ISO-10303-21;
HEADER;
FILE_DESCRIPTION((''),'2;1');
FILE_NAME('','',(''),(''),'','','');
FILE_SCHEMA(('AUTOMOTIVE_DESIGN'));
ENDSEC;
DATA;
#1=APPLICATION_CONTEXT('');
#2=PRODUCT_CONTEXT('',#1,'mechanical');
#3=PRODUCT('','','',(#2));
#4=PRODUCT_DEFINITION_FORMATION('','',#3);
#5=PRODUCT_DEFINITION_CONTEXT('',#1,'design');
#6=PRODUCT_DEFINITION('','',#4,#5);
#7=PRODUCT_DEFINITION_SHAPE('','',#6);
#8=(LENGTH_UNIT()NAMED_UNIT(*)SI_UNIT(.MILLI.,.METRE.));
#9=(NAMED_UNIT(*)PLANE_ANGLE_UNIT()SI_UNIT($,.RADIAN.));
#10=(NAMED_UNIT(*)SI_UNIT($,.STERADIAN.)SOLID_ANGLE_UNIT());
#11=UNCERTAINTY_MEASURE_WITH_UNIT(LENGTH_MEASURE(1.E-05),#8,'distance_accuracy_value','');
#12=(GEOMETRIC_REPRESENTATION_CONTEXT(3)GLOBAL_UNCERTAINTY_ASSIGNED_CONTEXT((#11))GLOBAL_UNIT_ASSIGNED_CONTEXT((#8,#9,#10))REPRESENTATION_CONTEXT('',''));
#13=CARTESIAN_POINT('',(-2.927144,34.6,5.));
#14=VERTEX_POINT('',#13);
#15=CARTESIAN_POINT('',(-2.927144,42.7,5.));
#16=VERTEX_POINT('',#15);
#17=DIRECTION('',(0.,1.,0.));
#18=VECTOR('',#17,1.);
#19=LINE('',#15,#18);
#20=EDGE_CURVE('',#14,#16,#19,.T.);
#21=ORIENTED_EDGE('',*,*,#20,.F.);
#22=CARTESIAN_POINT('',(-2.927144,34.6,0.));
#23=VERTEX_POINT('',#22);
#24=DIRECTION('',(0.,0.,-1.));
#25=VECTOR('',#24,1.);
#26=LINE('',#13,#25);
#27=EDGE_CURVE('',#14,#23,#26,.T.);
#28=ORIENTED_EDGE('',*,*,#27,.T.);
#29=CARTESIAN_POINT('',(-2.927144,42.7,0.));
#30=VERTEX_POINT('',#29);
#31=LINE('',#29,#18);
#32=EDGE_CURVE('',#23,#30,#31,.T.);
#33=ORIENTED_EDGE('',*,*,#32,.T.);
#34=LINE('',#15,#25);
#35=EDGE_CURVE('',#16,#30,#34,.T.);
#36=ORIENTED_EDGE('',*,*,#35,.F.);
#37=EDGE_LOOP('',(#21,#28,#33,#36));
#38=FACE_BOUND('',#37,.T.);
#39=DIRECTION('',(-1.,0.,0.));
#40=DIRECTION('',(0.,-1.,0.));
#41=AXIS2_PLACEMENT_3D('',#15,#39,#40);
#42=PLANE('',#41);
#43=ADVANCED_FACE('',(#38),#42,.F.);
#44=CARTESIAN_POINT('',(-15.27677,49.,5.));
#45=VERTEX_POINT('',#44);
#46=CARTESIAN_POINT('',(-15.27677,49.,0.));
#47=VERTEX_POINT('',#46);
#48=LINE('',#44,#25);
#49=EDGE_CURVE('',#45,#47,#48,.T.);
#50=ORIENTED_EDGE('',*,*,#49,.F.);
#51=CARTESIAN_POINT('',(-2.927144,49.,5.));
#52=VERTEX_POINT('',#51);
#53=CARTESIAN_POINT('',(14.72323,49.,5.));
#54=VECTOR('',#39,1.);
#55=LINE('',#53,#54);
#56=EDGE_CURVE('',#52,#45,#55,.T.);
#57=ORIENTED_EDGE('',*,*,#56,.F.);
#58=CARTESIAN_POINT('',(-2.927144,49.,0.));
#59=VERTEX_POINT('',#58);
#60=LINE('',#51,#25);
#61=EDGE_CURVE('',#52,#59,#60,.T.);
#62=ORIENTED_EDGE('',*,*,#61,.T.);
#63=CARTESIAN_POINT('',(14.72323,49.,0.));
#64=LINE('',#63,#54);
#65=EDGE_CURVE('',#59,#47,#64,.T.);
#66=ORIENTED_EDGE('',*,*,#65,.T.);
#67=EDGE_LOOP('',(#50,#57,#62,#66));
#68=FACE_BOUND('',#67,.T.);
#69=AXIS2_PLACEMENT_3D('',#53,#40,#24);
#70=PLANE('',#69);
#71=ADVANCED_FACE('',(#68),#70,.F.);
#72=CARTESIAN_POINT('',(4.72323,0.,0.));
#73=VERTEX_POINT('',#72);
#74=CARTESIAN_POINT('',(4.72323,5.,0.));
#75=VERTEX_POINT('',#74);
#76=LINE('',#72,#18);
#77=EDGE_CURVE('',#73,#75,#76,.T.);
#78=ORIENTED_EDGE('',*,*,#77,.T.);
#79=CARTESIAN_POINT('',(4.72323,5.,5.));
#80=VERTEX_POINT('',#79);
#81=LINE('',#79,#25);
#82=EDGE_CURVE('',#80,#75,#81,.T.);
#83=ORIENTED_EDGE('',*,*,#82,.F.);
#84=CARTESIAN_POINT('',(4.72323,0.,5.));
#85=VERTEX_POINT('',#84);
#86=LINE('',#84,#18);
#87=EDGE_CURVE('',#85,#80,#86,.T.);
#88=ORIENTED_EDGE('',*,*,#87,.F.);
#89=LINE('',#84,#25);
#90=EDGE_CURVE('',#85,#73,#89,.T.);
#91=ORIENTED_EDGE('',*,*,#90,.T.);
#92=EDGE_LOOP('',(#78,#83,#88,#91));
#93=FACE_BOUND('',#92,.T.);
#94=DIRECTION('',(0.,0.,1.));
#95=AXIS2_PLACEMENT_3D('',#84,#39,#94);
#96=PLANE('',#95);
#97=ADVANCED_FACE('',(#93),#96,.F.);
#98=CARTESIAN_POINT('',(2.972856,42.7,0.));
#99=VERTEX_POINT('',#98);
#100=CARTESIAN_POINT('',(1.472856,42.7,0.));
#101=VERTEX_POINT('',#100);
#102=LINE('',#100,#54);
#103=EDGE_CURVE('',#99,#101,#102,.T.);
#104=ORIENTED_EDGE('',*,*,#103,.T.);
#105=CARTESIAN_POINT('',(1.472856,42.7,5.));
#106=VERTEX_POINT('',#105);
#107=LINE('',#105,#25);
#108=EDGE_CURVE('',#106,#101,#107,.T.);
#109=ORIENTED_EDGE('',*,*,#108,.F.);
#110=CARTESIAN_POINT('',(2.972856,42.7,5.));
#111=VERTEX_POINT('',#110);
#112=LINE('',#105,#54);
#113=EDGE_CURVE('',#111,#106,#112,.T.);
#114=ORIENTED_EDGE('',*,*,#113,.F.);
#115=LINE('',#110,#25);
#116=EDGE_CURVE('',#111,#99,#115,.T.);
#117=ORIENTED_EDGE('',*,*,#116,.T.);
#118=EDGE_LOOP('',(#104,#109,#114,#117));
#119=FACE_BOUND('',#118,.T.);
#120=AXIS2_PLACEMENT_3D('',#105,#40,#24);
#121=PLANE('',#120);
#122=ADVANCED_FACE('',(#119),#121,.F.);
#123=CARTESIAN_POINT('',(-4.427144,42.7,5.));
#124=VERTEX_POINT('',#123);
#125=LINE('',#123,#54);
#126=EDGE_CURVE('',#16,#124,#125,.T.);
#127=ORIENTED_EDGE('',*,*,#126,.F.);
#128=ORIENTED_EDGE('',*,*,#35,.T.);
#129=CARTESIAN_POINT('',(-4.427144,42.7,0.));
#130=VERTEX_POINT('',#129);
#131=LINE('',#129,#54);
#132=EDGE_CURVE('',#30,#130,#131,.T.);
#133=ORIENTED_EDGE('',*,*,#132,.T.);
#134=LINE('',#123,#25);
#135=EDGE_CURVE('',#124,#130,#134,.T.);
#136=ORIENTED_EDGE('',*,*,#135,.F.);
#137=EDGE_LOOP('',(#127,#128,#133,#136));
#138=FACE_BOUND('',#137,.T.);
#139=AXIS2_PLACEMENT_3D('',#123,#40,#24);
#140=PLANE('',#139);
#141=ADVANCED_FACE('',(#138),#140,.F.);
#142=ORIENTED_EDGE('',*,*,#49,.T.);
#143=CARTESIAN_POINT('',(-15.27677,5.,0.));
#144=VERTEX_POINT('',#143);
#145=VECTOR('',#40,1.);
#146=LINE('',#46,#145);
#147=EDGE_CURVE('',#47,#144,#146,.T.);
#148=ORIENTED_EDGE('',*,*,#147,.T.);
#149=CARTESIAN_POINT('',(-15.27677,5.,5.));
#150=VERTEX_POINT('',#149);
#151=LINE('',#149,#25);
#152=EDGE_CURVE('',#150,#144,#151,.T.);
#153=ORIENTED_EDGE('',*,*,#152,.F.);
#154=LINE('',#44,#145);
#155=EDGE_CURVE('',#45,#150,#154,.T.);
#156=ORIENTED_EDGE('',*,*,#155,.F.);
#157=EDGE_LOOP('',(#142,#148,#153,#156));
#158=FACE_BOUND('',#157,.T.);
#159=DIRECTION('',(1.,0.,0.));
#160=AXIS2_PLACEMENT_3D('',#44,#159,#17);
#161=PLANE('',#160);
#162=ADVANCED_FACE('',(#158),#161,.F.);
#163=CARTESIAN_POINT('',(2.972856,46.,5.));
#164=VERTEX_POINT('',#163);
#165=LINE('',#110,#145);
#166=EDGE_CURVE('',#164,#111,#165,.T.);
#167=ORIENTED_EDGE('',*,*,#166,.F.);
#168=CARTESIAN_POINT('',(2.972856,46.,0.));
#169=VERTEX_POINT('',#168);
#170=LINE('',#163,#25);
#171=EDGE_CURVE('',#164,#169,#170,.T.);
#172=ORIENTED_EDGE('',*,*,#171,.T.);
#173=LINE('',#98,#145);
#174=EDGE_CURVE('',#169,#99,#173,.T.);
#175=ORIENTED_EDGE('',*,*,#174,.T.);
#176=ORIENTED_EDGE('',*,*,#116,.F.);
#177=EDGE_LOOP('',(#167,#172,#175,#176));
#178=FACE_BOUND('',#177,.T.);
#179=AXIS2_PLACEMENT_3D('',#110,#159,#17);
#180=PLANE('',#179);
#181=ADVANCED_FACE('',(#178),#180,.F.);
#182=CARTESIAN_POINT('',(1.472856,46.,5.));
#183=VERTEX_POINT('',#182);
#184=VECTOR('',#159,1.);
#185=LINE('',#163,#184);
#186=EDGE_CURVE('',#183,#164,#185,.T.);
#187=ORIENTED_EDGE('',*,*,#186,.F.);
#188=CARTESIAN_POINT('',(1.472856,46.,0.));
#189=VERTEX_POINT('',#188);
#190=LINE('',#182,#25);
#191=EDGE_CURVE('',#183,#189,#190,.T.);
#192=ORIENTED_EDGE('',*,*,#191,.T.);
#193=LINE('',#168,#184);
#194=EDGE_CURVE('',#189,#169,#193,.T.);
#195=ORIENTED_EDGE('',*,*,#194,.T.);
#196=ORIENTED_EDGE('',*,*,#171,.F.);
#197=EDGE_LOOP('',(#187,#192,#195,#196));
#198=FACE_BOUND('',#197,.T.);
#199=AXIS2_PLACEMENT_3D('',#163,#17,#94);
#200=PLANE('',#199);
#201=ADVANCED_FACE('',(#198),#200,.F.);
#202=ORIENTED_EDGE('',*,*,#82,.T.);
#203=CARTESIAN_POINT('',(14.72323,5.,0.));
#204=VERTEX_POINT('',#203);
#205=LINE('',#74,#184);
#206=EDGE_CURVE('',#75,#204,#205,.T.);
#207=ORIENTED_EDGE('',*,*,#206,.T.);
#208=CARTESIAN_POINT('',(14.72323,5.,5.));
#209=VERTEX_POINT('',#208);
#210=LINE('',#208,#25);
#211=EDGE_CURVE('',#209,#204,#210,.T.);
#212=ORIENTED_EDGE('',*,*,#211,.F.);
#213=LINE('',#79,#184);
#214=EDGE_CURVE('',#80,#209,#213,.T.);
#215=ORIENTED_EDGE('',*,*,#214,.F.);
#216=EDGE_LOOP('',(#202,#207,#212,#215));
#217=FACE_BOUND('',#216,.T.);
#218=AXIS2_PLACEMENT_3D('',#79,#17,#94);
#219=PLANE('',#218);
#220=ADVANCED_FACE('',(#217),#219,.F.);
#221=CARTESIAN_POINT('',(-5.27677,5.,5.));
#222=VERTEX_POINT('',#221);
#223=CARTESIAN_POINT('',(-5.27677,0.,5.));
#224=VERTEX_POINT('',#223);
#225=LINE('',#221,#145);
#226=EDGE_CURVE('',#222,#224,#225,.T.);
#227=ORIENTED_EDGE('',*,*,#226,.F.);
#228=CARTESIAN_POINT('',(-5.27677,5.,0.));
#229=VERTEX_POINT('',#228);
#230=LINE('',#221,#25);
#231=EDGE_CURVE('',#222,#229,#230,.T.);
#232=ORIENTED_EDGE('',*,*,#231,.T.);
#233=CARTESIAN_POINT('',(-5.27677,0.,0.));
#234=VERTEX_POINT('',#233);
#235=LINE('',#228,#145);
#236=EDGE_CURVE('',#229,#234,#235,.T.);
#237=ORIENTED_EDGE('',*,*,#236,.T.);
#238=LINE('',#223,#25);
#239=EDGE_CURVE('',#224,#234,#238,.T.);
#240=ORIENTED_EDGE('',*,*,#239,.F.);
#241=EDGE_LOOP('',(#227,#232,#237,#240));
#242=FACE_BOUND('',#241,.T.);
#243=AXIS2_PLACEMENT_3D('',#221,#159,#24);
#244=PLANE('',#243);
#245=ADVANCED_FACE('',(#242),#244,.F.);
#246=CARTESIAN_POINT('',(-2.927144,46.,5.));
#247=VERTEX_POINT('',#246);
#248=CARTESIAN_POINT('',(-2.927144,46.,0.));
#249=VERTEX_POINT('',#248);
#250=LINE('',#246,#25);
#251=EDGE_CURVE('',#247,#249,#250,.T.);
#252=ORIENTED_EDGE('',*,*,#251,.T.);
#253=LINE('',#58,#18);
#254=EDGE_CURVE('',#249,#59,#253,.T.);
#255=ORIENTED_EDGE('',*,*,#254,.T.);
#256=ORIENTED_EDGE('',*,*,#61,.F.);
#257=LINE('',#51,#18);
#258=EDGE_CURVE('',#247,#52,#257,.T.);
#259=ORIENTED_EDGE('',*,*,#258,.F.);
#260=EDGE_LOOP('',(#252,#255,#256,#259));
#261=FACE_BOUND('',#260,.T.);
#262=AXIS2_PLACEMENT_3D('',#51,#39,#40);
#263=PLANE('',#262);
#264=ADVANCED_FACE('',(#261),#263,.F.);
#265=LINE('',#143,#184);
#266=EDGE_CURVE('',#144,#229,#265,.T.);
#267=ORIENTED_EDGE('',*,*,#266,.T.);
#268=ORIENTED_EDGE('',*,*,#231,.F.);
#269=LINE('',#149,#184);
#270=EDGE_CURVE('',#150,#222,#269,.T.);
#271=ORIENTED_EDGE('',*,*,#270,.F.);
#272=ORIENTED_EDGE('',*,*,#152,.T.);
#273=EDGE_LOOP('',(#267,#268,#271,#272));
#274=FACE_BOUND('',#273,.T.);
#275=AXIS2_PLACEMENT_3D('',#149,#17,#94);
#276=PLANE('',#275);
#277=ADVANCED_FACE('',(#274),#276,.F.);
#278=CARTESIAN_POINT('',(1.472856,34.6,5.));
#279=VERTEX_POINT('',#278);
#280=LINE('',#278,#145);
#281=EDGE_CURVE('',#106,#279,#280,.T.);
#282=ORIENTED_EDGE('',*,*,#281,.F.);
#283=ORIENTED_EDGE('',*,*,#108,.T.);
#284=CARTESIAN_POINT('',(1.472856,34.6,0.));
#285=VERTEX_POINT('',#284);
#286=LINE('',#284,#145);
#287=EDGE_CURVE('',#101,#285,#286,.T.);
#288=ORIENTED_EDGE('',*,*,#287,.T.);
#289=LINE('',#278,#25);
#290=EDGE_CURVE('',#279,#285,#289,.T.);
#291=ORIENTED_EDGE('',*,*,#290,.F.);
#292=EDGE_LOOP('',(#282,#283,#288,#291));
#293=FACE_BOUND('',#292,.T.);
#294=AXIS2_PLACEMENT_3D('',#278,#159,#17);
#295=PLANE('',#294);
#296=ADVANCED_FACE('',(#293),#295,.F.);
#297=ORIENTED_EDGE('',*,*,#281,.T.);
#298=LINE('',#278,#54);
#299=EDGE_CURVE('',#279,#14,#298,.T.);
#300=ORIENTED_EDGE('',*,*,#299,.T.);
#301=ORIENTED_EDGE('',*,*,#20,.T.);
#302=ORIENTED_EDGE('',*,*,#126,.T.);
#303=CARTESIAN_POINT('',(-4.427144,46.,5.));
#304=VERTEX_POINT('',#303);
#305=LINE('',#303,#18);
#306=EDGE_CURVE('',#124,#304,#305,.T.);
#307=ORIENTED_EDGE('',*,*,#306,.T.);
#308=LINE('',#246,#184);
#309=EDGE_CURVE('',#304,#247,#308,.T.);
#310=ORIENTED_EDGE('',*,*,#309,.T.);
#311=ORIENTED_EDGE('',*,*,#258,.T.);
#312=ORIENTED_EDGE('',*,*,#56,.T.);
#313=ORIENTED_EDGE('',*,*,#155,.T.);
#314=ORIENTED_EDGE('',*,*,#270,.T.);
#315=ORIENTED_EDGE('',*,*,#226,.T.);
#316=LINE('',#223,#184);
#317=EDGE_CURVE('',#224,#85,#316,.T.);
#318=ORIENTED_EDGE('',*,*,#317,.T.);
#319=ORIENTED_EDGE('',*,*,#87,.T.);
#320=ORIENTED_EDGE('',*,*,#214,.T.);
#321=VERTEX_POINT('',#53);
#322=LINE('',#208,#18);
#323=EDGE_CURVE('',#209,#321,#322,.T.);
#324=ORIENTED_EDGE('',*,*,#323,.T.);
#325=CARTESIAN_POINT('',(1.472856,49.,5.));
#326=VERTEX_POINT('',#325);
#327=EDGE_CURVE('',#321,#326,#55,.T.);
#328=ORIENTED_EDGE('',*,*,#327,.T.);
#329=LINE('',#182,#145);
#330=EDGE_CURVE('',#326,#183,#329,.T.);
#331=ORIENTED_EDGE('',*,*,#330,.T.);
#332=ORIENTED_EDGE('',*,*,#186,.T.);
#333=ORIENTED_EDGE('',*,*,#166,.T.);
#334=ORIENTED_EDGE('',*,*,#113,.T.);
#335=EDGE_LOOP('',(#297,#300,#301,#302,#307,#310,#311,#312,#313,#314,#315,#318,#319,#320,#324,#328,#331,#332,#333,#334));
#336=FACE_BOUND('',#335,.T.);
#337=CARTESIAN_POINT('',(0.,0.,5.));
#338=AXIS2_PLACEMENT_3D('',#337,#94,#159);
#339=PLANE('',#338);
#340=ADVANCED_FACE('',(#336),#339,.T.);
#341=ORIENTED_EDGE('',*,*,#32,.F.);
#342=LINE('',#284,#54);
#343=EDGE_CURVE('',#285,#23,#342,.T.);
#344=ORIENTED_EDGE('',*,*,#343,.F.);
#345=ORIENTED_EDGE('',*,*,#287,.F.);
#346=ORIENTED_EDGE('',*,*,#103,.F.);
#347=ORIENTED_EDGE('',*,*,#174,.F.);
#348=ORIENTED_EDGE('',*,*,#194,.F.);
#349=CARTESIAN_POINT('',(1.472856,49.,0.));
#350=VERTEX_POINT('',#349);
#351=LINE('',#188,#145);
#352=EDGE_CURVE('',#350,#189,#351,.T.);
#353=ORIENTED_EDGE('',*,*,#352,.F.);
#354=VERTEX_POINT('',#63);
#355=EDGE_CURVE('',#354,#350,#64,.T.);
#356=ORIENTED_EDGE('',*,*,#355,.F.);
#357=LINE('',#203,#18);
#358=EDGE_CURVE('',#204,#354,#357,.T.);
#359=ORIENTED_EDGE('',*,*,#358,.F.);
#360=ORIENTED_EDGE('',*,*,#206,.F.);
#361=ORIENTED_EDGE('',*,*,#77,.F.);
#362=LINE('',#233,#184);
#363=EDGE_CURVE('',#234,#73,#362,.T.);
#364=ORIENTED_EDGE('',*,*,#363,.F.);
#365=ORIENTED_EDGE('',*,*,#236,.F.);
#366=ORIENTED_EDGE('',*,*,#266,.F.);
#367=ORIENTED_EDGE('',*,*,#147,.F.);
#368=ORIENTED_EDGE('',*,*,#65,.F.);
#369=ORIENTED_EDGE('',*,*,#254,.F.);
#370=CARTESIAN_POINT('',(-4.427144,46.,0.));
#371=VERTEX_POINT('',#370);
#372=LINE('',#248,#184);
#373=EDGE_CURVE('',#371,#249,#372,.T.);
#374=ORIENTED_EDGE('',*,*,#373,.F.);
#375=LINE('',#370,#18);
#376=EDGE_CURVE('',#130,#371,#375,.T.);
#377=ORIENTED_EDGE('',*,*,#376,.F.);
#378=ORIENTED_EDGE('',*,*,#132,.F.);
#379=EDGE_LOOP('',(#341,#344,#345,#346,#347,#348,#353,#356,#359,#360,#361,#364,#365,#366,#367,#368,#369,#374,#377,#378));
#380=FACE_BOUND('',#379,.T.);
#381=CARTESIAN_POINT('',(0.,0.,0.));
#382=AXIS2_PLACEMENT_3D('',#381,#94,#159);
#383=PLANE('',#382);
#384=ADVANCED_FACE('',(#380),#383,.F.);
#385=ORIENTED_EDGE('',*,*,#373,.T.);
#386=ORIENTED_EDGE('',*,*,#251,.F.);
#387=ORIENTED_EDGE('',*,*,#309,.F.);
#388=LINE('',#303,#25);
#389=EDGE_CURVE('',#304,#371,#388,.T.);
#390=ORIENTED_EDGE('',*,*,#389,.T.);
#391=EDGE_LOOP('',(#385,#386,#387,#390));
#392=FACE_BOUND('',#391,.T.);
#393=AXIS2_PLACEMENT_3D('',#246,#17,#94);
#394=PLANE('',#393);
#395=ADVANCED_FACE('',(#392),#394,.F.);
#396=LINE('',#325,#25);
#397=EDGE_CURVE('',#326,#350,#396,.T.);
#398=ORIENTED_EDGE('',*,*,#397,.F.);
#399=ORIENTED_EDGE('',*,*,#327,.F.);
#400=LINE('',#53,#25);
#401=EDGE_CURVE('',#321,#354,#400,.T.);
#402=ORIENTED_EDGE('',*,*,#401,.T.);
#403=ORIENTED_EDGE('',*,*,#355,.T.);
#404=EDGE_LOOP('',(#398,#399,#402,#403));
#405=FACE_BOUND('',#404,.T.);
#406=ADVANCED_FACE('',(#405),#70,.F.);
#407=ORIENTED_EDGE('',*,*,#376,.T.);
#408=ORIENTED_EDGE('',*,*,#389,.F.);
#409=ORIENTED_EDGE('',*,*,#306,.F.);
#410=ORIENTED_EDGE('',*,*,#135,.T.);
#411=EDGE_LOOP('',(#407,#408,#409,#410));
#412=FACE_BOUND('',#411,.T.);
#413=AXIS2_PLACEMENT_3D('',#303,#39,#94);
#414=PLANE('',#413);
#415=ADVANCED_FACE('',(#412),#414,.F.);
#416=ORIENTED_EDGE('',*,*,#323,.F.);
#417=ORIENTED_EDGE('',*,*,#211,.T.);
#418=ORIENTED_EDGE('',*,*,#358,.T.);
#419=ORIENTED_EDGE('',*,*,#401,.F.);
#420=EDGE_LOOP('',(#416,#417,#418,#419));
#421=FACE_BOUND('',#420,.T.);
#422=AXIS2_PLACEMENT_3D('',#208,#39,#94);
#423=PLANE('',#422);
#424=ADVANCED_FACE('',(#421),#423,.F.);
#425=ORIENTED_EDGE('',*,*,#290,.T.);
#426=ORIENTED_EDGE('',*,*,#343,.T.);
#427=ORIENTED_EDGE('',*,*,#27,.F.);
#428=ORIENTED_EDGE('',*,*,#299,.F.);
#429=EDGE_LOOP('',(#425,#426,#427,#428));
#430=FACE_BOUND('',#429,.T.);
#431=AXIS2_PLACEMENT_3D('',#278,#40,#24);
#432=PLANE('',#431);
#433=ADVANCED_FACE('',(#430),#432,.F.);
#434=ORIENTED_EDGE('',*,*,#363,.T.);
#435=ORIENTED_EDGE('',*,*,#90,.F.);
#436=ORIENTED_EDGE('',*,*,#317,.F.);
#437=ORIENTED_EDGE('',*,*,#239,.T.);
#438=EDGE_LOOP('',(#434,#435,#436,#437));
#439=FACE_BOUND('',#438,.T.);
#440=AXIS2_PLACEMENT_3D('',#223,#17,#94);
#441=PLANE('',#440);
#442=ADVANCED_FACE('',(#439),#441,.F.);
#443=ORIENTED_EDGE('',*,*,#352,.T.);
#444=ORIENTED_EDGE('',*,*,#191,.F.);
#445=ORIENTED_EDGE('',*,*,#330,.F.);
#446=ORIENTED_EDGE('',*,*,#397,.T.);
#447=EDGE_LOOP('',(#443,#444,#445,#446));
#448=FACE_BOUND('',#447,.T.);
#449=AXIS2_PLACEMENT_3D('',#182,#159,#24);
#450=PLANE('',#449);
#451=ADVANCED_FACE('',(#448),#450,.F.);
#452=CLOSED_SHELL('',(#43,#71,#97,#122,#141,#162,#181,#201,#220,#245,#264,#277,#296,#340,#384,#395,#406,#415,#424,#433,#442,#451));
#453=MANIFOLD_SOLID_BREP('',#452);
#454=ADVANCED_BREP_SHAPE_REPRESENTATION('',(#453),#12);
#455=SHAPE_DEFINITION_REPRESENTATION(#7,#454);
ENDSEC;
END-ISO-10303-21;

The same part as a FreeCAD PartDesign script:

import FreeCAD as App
import Part
import Sketcher
Q = App.Units.Quantity


def add_polygon(sketch, points):
    """Adds a closed chain of lines whose ends are joined by coincident constraints."""
    first, n = sketch.GeometryCount, len(points)
    for a, b in zip(points, points[1:] + points[:1]):
        sketch.addGeometry(Part.LineSegment(App.Vector(*a, 0), App.Vector(*b, 0)), False)
    for i in range(n):
        sketch.addConstraint(Sketcher.Constraint("Coincident", first + i, 2, first + (i + 1) % n, 1))

doc = App.newDocument("Part")
params = doc.addObject("Spreadsheet::Sheet", "Params")
for row, (alias, value) in enumerate([
    ("sketch1_width", "10 mm"),
    ("sketch1_height", "5 mm"),
    ("sketch1_height2", "44 mm"),
    ("pad1_length", "5 mm"),
    ("sketch2_height", "3 mm"),
    ("sketch2_width", "4.4 mm"),
    ("sketch2_width2", "1.5 mm"),
    ("sketch2_height2", "8.1 mm"),
    ("sketch2_height3", "3.3 mm"),
    ("pocket1_length", "5 mm"),
], start=1):
    params.set(f"A{row}", alias)
    params.set(f"B{row}", "=" + value)
    params.setAlias(f"B{row}", alias)

body = doc.addObject("PartDesign::Body", "Body")

# Sketch on XY plane
sketch1 = body.newObject("Sketcher::SketchObject", "Sketch")
sketch1.AttachmentSupport = (doc.getObject("XY_Plane"), [""])
sketch1.MapMode = "FlatFace"
add_polygon(sketch1, [(-5.27677, 0), (4.72323, 0), (4.72323, 5), (14.72323, 5), (14.72323, 49), (-15.27677, 49), (-15.27677, 5), (-5.27677, 5)])  # lines 0-7
sketch1.addConstraint(Sketcher.Constraint("Horizontal", 0))
sketch1.addConstraint(Sketcher.Constraint("Vertical", 1))
sketch1.addConstraint(Sketcher.Constraint("Horizontal", 2))
sketch1.addConstraint(Sketcher.Constraint("Vertical", 3))
sketch1.addConstraint(Sketcher.Constraint("Horizontal", 4))
sketch1.addConstraint(Sketcher.Constraint("Vertical", 5))
sketch1.addConstraint(Sketcher.Constraint("Horizontal", 6))
sketch1.addConstraint(Sketcher.Constraint("Vertical", 7))
sketch1.addConstraint(Sketcher.Constraint("PointOnObject", 0, 2, -1))
sketch1.addConstraint(Sketcher.Constraint("Horizontal", 2, 2, 5, 2))
sketch1.addConstraint(Sketcher.Constraint("Equal", 0, 2))
sketch1.addConstraint(Sketcher.Constraint("Equal", 2, 6))
sketch1.addConstraint(Sketcher.Constraint("DistanceX", 0, 1, 0, 2, Q("10 mm")))
sketch1.addConstraint(Sketcher.Constraint("DistanceY", 1, 1, 1, 2, Q("5 mm")))
sketch1.addConstraint(Sketcher.Constraint("DistanceY", 3, 1, 3, 2, Q("44 mm")))
sketch1.addConstraint(Sketcher.Constraint("DistanceX", -1, 1, 0, 2, Q("4.72323 mm")))
sketch1.setExpression("Constraints[20]", "Params.sketch1_width")
sketch1.setExpression("Constraints[21]", "Params.sketch1_height")
sketch1.setExpression("Constraints[22]", "Params.sketch1_height2")
pad1 = body.newObject("PartDesign::Pad", "Pad")
pad1.Profile = sketch1
pad1.setExpression("Length", "Params.pad1_length")

# Sketch on XY plane
sketch2 = body.newObject("Sketcher::SketchObject", "Sketch001")
sketch2.AttachmentSupport = (doc.getObject("XY_Plane"), [""])
sketch2.MapMode = "FlatFace"
add_polygon(sketch2, [(1.472856, 34.6), (-2.927144, 34.6), (-2.927144, 42.7), (-4.427144, 42.7), (-4.427144, 46), (-2.927144, 46), (-2.927144, 49), (1.472856, 49), (1.472856, 46), (2.972856, 46), (2.972856, 42.7), (1.472856, 42.7)])  # lines 0-11
sketch2.addConstraint(Sketcher.Constraint("Horizontal", 0))
sketch2.addConstraint(Sketcher.Constraint("Vertical", 1))
sketch2.addConstraint(Sketcher.Constraint("Horizontal", 2))
sketch2.addConstraint(Sketcher.Constraint("Vertical", 3))
sketch2.addConstraint(Sketcher.Constraint("Horizontal", 4))
sketch2.addConstraint(Sketcher.Constraint("Vertical", 5))
sketch2.addConstraint(Sketcher.Constraint("Horizontal", 6))
sketch2.addConstraint(Sketcher.Constraint("Vertical", 7))
sketch2.addConstraint(Sketcher.Constraint("Horizontal", 8))
sketch2.addConstraint(Sketcher.Constraint("Vertical", 9))
sketch2.addConstraint(Sketcher.Constraint("Horizontal", 10))
sketch2.addConstraint(Sketcher.Constraint("Vertical", 11))
sketch2.addConstraint(Sketcher.Constraint("Horizontal", 4, 2, 7, 2))
sketch2.addConstraint(Sketcher.Constraint("Horizontal", 2, 2, 9, 2))
sketch2.addConstraint(Sketcher.Constraint("Vertical", 1, 2, 4, 2))
sketch2.addConstraint(Sketcher.Constraint("Vertical", 7, 2, 10, 2))
sketch2.addConstraint(Sketcher.Constraint("Equal", 4, 8))
sketch2.addConstraint(Sketcher.Constraint("DistanceY", 5, 1, 5, 2, Q("3 mm")))
sketch2.addConstraint(Sketcher.Constraint("DistanceX", 0, 2, 0, 1, Q("4.4 mm")))
sketch2.addConstraint(Sketcher.Constraint("DistanceX", 2, 2, 2, 1, Q("1.5 mm")))
sketch2.addConstraint(Sketcher.Constraint("DistanceY", 1, 1, 1, 2, Q("8.1 mm")))
sketch2.addConstraint(Sketcher.Constraint("DistanceY", 3, 1, 3, 2, Q("3.3 mm")))
sketch2.addConstraint(Sketcher.Constraint("DistanceY", -1, 1, 3, 2, Q("46 mm")))
sketch2.addConstraint(Sketcher.Constraint("DistanceX", 0, 2, -1, 1, Q("2.927144 mm")))
sketch2.setExpression("Constraints[29]", "Params.sketch2_height")
sketch2.setExpression("Constraints[30]", "Params.sketch2_width")
sketch2.setExpression("Constraints[31]", "Params.sketch2_width2")
sketch2.setExpression("Constraints[32]", "Params.sketch2_height2")
sketch2.setExpression("Constraints[33]", "Params.sketch2_height3")
pocket1 = body.newObject("PartDesign::Pocket", "Pocket")
pocket1.Profile = sketch2
pocket1.setExpression("Length", "Params.pocket1_length")
pocket1.Reversed = True

doc.recompute()
